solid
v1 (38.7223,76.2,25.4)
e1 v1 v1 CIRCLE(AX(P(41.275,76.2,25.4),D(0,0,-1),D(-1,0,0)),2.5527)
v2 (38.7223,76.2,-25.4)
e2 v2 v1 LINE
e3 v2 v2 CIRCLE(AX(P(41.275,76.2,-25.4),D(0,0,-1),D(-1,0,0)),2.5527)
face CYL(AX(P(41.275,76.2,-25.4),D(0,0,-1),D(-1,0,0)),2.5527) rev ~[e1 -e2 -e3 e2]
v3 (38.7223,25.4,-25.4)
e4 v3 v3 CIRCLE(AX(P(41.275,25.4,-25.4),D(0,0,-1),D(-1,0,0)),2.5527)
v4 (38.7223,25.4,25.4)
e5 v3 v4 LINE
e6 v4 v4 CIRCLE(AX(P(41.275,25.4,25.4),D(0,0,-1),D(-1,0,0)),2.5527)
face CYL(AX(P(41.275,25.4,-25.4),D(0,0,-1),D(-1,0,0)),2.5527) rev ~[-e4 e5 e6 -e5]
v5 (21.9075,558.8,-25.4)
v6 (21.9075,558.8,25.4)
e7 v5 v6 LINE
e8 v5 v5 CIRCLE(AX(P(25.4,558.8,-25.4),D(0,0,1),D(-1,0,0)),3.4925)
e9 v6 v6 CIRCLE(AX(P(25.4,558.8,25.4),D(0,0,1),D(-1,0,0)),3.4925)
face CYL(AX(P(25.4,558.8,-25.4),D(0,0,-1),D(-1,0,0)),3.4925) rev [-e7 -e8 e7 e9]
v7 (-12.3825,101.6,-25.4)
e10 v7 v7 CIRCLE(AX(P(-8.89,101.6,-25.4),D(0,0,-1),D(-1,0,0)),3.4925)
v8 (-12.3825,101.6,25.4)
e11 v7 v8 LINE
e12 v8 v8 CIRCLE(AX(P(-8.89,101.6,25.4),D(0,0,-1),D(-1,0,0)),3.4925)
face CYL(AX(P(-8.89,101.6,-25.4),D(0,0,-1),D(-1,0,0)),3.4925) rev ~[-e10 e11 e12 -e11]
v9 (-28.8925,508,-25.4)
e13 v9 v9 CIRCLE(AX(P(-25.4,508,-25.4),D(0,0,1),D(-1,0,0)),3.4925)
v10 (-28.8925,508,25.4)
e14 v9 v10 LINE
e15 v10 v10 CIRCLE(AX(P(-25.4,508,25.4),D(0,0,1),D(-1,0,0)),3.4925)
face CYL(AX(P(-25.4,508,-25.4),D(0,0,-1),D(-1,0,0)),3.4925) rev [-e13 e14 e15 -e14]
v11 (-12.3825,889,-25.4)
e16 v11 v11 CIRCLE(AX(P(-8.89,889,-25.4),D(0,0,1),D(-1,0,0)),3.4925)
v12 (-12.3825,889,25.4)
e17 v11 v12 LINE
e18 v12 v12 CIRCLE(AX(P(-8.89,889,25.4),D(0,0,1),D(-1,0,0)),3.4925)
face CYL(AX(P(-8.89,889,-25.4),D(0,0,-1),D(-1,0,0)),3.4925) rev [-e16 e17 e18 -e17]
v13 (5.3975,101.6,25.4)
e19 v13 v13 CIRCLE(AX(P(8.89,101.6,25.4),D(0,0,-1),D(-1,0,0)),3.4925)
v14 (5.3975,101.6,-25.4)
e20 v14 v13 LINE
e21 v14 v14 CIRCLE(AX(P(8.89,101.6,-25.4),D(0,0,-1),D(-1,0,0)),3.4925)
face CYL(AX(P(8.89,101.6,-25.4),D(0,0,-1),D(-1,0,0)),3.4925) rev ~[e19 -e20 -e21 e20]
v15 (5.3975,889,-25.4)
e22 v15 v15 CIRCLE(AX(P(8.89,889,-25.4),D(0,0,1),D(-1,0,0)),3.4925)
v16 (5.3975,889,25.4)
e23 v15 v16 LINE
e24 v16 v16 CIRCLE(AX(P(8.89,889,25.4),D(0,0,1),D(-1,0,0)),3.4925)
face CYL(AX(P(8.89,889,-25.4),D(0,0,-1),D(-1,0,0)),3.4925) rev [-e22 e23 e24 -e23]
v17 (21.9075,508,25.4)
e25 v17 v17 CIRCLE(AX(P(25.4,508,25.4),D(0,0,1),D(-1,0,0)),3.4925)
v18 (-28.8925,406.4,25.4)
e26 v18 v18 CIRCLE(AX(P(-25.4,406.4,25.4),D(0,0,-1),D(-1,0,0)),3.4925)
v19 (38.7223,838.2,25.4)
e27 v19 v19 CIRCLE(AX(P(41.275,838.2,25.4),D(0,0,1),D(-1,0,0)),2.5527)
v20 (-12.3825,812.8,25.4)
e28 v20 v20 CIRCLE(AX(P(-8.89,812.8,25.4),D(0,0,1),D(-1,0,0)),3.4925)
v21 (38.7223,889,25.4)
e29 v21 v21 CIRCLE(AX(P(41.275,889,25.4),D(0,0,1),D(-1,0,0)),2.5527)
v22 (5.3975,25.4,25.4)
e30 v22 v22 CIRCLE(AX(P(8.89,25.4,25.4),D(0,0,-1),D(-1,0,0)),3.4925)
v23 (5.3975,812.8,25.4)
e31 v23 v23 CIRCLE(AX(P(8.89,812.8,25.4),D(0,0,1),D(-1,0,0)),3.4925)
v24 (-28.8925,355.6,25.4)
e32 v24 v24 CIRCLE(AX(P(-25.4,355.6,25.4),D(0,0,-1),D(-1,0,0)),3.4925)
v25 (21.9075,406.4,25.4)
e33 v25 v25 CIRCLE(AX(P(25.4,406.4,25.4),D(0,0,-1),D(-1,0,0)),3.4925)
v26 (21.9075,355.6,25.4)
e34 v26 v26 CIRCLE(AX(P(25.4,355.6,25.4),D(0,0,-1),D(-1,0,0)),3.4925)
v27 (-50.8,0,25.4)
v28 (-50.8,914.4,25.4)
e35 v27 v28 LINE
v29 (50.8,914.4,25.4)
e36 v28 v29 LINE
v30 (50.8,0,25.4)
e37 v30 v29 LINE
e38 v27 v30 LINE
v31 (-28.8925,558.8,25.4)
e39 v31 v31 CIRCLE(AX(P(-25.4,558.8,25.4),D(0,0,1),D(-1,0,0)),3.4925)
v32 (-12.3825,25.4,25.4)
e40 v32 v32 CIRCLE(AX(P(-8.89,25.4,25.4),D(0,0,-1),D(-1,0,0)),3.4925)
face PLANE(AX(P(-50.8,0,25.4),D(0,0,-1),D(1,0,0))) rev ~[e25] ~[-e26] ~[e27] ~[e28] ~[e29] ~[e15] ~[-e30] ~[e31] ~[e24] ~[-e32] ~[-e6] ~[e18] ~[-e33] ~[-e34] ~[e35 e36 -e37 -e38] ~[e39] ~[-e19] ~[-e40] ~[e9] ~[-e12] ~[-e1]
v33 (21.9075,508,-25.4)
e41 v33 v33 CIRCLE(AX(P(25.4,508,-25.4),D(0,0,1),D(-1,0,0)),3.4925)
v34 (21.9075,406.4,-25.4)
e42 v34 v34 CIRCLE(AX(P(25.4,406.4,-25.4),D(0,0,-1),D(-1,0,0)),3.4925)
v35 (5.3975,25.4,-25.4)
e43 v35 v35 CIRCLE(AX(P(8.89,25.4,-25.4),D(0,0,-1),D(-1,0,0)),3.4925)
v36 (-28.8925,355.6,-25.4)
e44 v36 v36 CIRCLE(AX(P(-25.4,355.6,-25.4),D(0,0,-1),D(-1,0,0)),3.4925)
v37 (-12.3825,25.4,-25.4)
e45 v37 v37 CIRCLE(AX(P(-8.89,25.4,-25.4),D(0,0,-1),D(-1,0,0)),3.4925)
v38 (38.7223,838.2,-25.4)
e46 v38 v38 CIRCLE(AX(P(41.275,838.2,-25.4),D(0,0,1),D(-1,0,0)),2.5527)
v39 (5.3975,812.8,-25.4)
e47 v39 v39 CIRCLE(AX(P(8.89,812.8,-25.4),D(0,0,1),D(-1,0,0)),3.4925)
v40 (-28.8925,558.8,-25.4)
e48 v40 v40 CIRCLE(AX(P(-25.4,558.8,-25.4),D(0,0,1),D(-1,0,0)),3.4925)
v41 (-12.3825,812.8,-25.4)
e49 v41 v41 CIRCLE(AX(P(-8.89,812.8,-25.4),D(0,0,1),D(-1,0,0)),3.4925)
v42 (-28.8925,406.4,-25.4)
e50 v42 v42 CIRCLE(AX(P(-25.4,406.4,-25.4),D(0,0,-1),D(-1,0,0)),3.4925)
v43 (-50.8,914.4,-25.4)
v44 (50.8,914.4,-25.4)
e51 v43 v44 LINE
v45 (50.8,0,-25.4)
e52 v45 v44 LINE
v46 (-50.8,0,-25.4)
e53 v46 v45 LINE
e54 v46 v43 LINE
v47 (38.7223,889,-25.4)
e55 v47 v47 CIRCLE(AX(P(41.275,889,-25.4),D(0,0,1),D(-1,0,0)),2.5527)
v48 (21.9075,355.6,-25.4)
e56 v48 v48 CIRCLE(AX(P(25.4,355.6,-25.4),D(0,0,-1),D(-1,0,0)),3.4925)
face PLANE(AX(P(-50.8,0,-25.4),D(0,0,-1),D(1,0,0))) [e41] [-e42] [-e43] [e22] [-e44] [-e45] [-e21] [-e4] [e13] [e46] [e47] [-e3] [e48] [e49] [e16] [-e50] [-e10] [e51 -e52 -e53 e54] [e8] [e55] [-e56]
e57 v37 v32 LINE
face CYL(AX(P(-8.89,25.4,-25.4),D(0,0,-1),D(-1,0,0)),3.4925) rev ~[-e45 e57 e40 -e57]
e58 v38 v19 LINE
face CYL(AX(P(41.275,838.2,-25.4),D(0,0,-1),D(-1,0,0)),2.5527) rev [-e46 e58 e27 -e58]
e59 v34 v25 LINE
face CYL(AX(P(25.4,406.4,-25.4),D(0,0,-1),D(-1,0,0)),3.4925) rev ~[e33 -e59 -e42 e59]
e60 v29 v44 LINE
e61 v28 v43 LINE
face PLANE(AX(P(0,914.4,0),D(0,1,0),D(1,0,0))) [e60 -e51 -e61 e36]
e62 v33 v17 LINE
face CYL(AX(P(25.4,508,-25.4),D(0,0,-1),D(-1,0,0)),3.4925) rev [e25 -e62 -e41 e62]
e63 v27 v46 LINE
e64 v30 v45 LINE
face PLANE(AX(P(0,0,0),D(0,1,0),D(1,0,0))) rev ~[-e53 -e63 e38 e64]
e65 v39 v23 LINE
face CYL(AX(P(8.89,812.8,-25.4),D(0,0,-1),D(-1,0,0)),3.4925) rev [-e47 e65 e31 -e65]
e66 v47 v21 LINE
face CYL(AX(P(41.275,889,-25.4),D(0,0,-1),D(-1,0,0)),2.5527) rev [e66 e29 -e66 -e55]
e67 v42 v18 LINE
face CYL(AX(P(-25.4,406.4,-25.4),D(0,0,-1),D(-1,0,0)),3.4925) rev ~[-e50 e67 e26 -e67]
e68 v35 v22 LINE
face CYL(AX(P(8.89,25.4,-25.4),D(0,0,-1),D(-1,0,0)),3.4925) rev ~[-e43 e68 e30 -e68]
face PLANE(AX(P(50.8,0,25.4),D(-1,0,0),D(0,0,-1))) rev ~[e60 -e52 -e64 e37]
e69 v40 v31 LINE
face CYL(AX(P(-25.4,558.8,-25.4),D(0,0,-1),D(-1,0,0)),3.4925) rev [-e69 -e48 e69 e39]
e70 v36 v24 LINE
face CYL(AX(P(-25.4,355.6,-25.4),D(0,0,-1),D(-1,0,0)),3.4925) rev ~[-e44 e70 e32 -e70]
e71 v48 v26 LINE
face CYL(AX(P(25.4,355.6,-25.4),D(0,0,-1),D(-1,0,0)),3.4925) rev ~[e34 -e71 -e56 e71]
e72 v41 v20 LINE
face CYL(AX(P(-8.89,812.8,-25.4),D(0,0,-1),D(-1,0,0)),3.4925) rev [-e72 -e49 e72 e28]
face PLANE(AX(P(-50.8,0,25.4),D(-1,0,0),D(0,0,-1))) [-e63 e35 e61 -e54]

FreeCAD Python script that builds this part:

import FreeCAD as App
import Part
import Sketcher

V = App.Vector
Q = App.Units.Quantity


def add_polygon(sketch, points):
    """Adds a closed chain of lines whose ends are joined by coincident constraints."""
    first, n = sketch.GeometryCount, len(points)
    for a, b in zip(points, points[1:] + points[:1]):
        sketch.addGeometry(Part.LineSegment(App.Vector(*a, 0), App.Vector(*b, 0)), False)
    for i in range(n):
        sketch.addConstraint(Sketcher.Constraint("Coincident", first + i, 2, first + (i + 1) % n, 1))

doc = App.newDocument("Part")
body = doc.addObject("PartDesign::Body", "Body")

sketch1 = body.newObject("Sketcher::SketchObject", "Sketch")
sketch1.AttachmentSupport = (doc.getObject("XZ_Plane"), [""])
sketch1.MapMode = "FlatFace"
add_polygon(sketch1, [(-50.8, -25.4), (-50.8, 25.4), (50.8, 25.4), (50.8, -25.4)])
sketch1.addConstraint([
    Sketcher.Constraint("Vertical", 0),
    Sketcher.Constraint("Horizontal", 1),
    Sketcher.Constraint("Vertical", 2),
    Sketcher.Constraint("Horizontal", 3),
    Sketcher.Constraint("Symmetric", 0, 2, 2, 2, -1, 1),
    Sketcher.Constraint("DistanceX", 1, 1, 1, 2, Q("4 in")),
    Sketcher.Constraint("DistanceY", 0, 1, 0, 2, Q("2 in")),
])
pad1 = body.newObject("PartDesign::Pad", "Pad")
pad1.Profile = sketch1
pad1.Length = Q("36 in")
pad1.Reversed = True

sketch2 = body.newObject("Sketcher::SketchObject", "Sketch001")
sketch2.AttachmentSupport = (doc.getObject("XY_Plane"), [""])
sketch2.MapMode = "FlatFace"
sketch2.AttachmentOffset = App.Placement(V(0, 0, -1 * 25.4), App.Rotation())
sketch2.addGeometry([
    Part.Circle(V(8.89, 25.4, 0), V(0, 0, 1), 3.4925),
    Part.Circle(V(-8.89, 25.4, 0), V(0, 0, 1), 3.4925),
    Part.Circle(V(-8.89, 101.6, 0), V(0, 0, 1), 3.4925),
    Part.Circle(V(8.89, 101.6, 0), V(0, 0, 1), 3.4925),
], False)
sketch2.addConstraint([
    Sketcher.Constraint("Equal", 0, 1),
    Sketcher.Constraint("Equal", 1, 2),
    Sketcher.Constraint("Equal", 2, 3),
    Sketcher.Constraint("Symmetric", 0, 3, 1, 3, -2),
    Sketcher.Constraint("Symmetric", 2, 3, 3, 3, -2),
    Sketcher.Constraint("Vertical", 1, 3, 2, 3),
    Sketcher.Constraint("Diameter", 0, Q("0.275 in")),
    Sketcher.Constraint("DistanceY", -1, 1, 0, 3, Q("1 in")),
    Sketcher.Constraint("DistanceY", -1, 1, 2, 3, Q("4 in")),
    Sketcher.Constraint("DistanceX", 1, 3, 0, 3, Q("0.7 in")),
])
pocket1 = body.newObject("PartDesign::Pocket", "Pocket")
pocket1.Profile = sketch2
pocket1.Length = Q("2 in")
pocket1.Reversed = True

sketch3 = body.newObject("Sketcher::SketchObject", "Sketch002")
sketch3.AttachmentSupport = (doc.getObject("XY_Plane"), [""])
sketch3.MapMode = "FlatFace"
sketch3.AttachmentOffset = App.Placement(V(0, 0, -1 * 25.4), App.Rotation())
sketch3.addGeometry([
    Part.Circle(V(41.275, 76.2, 0), V(0, 0, 1), 2.5527),
    Part.Circle(V(41.275, 25.4, 0), V(0, 0, 1), 2.5527),
], False)
sketch3.addConstraint([
    Sketcher.Constraint("Equal", 0, 1),
    Sketcher.Constraint("Vertical", 0, 3, 1, 3),
    Sketcher.Constraint("Diameter", 0, Q("0.201 in")),
    Sketcher.Constraint("DistanceY", -1, 1, 0, 3, Q("3 in")),
    Sketcher.Constraint("DistanceY", -1, 1, 1, 3, Q("1 in")),
    Sketcher.Constraint("DistanceX", -1, 1, 0, 3, Q("1.625 in")),
])
pocket2 = body.newObject("PartDesign::Pocket", "Pocket001")
pocket2.Profile = sketch3
pocket2.Length = Q("2 in")
pocket2.Reversed = True
doc.recompute()

datumplane = body.newObject("PartDesign::Plane", "DatumPlane")
datumplane.AttachmentSupport = (doc.getObject("XZ_Plane"), [""])
datumplane.MapMode = "FlatFace"
datumplane.AttachmentOffset = App.Placement(V(0, 0, -18 * 25.4), App.Rotation())
mirrored = body.newObject("PartDesign::Mirrored", "Mirrored")
mirrored.Originals = [pocket1, pocket2]
mirrored.MirrorPlane = (datumplane, [""])
body.Tip = mirrored

sketch4 = body.newObject("Sketcher::SketchObject", "Sketch003")
sketch4.AttachmentSupport = (doc.getObject("XY_Plane"), [""])
sketch4.MapMode = "FlatFace"
sketch4.AttachmentOffset = App.Placement(V(0, 0, -1 * 25.4), App.Rotation())
sketch4.addGeometry([
    Part.Circle(V(25.4, 406.4, 0), V(0, 0, 1), 3.4925),
    Part.Circle(V(-25.4, 406.4, 0), V(0, 0, 1), 3.4925),
    Part.Circle(V(-25.4, 355.6, 0), V(0, 0, 1), 3.4925),
    Part.Circle(V(25.4, 355.6, 0), V(0, 0, 1), 3.4925),
], False)
sketch4.addConstraint([
    Sketcher.Constraint("Equal", 0, 1),
    Sketcher.Constraint("Equal", 1, 2),
    Sketcher.Constraint("Equal", 2, 3),
    Sketcher.Constraint("Symmetric", 0, 3, 1, 3, -2),
    Sketcher.Constraint("Symmetric", 2, 3, 3, 3, -2),
    Sketcher.Constraint("Vertical", 1, 3, 2, 3),
    Sketcher.Constraint("Diameter", 0, Q("0.275 in")),
    Sketcher.Constraint("DistanceX", -1, 1, 0, 3, Q("1 in")),
    Sketcher.Constraint("DistanceY", -1, 1, 0, 3, Q("16 in")),
    Sketcher.Constraint("DistanceY", -1, 1, 2, 3, Q("14 in")),
])
pocket3 = body.newObject("PartDesign::Pocket", "Pocket002")
pocket3.Profile = sketch4
pocket3.Length = Q("2 in")
pocket3.Reversed = True
doc.recompute()

datumplane2 = body.newObject("PartDesign::Plane", "DatumPlane001")
datumplane2.AttachmentSupport = (doc.getObject("XZ_Plane"), [""])
datumplane2.MapMode = "FlatFace"
datumplane2.AttachmentOffset = App.Placement(V(0, 0, -18 * 25.4), App.Rotation())
mirrored2 = body.newObject("PartDesign::Mirrored", "Mirrored001")
mirrored2.Originals = [pocket3]
mirrored2.MirrorPlane = (datumplane2, [""])
body.Tip = mirrored2

doc.recompute()
